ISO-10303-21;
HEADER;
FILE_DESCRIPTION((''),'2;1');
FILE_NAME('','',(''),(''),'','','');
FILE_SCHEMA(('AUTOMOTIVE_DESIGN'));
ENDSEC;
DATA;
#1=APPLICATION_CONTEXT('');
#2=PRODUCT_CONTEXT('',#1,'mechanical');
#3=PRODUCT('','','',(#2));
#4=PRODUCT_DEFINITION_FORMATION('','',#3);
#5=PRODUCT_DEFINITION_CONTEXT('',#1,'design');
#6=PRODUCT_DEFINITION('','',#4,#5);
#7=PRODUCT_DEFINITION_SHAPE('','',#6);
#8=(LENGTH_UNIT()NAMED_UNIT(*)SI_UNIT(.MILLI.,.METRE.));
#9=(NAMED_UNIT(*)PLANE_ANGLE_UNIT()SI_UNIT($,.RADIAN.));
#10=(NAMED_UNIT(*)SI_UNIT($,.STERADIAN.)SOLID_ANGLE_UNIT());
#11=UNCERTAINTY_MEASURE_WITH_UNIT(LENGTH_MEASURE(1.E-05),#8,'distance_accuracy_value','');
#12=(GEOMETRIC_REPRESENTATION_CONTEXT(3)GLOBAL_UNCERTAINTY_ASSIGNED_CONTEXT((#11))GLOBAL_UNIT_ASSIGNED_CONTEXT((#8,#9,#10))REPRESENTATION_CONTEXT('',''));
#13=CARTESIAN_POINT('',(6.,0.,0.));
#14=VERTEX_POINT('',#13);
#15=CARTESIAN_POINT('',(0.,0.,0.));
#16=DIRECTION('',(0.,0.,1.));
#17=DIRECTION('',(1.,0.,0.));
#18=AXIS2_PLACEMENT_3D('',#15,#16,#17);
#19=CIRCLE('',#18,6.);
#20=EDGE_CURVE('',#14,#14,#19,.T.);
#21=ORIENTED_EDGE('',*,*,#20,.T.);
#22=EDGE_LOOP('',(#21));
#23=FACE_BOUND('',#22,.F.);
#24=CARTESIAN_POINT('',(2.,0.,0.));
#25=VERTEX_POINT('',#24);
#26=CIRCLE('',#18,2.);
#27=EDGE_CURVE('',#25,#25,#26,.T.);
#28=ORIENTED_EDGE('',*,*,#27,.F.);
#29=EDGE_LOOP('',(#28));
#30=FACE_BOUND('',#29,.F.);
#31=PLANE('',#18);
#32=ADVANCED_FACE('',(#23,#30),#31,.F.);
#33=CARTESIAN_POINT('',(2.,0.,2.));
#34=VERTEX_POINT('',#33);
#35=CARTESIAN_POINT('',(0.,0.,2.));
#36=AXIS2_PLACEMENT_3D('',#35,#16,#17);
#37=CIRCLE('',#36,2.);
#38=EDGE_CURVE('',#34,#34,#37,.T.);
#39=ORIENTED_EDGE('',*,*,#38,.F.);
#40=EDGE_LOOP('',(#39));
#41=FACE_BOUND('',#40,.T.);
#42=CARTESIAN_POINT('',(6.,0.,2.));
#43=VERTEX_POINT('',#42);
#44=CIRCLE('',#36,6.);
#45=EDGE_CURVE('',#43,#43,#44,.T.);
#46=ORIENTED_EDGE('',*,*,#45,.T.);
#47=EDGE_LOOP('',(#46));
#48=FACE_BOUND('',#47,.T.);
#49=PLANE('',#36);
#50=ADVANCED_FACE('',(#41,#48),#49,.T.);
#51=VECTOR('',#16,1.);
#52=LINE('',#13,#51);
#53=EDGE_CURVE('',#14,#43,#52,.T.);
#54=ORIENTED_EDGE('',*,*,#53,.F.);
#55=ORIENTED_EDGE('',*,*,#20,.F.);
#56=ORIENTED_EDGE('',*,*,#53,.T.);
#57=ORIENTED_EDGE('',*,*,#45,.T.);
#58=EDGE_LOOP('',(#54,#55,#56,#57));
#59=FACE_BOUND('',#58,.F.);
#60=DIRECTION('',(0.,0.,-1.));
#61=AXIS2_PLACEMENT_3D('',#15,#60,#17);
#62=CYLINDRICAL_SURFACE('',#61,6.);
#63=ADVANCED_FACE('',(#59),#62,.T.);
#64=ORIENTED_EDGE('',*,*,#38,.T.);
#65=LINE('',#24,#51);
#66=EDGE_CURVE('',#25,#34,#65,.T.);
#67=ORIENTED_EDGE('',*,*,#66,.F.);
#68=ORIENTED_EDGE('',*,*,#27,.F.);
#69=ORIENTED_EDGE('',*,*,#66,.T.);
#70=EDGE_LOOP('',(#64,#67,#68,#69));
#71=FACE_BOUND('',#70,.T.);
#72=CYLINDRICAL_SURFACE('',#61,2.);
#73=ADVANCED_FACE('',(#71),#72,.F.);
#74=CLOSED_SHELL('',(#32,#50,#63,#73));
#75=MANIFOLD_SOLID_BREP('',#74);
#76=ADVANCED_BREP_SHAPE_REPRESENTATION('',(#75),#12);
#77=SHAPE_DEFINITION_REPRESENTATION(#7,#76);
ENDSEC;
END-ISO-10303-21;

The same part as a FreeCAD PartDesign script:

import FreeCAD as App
import Part
import Sketcher
from FreeCAD import Vector
Q = App.Units.Quantity

doc = App.newDocument("Part")
params = doc.addObject("Spreadsheet::Sheet", "Params")
for row, (alias, value) in enumerate([
    ("sketch1_diameter", "12 mm"),
    ("sketch1_diameter2", "4 mm"),
    ("pad1_length", "2 mm"),
], start=1):
    params.set(f"A{row}", alias)
    params.set(f"B{row}", "=" + value)
    params.setAlias(f"B{row}", alias)

body = doc.addObject("PartDesign::Body", "Body")

# Sketch on XY plane
sketch1 = body.newObject("Sketcher::SketchObject", "Sketch")
sketch1.AttachmentSupport = (doc.getObject("XY_Plane"), [""])
sketch1.MapMode = "FlatFace"
sketch1.addGeometry([
    Part.Circle(Vector(0, 0, 0), Vector(0, 0, 1), 6),
    Part.Circle(Vector(0, 0, 0), Vector(0, 0, 1), 2),
], False)
sketch1.addConstraint([
    Sketcher.Constraint("Coincident", 0, 3, -1, 1),
    Sketcher.Constraint("Coincident", 1, 3, -1, 1),
    Sketcher.Constraint("Diameter", 0, Q("12 mm")),
    Sketcher.Constraint("Diameter", 1, Q("4 mm")),
])
sketch1.setExpression("Constraints[2]", "Params.sketch1_diameter")
sketch1.setExpression("Constraints[3]", "Params.sketch1_diameter2")
pad1 = body.newObject("PartDesign::Pad", "Pad")
pad1.Profile = sketch1
pad1.setExpression("Length", "Params.pad1_length")

doc.recompute()
